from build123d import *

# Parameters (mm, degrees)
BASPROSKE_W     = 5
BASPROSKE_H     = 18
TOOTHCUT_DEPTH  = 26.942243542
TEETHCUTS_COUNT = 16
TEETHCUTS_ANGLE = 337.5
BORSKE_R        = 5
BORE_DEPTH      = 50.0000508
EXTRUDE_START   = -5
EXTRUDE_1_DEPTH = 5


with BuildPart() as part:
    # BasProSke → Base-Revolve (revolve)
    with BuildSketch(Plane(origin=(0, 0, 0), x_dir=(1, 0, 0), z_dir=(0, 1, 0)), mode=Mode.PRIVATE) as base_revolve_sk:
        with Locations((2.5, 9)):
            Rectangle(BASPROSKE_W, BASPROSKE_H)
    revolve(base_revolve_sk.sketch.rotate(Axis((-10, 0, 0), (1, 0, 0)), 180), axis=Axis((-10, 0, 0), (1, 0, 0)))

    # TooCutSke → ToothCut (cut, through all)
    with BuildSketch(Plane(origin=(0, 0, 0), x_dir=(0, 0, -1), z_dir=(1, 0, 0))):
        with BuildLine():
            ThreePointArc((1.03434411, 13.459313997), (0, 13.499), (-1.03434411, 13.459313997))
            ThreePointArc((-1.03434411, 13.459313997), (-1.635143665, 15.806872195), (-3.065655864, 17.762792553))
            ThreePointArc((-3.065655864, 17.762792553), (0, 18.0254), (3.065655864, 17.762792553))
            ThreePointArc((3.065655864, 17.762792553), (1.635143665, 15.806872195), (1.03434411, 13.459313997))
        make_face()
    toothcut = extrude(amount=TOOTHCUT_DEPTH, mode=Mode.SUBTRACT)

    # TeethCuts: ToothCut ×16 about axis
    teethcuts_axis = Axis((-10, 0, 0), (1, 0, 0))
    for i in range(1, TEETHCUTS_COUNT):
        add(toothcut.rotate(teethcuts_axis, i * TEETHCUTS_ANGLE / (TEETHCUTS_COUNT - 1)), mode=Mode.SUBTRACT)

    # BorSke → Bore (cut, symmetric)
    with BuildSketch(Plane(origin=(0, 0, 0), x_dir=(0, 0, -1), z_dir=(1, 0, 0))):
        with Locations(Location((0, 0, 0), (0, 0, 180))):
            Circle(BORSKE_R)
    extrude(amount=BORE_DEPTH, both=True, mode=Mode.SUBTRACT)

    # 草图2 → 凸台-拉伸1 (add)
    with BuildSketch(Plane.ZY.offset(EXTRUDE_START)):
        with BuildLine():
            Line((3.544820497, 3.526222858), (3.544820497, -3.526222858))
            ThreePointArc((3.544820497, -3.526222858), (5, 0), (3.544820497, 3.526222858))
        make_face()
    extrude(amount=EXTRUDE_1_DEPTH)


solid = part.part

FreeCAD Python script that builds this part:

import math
import FreeCAD as App
import Part
import Sketcher

V = App.Vector
Q = App.Units.Quantity

doc = App.newDocument("Part")
body = doc.addObject("PartDesign::Body", "Body")

sketch1 = body.newObject("Sketcher::SketchObject", "Sketch")
sketch1.AttachmentSupport = (doc.getObject("XZ_Plane"), [""])
sketch1.MapMode = "FlatFace"
sketch1.addGeometry([
    Part.LineSegment(V(0, -18, 0), V(0, 0, 0)),
    Part.LineSegment(V(0, 0, 0), V(5, 0, 0)),
    Part.LineSegment(V(5, 0, 0), V(5, -18, 0)),
    Part.LineSegment(V(5, -18, 0), V(0, -18, 0)),
], False)
sketch1.addConstraint([
    Sketcher.Constraint("Coincident", 0, 2, 1, 1),
    Sketcher.Constraint("Coincident", 1, 2, 2, 1),
    Sketcher.Constraint("Coincident", 2, 2, 3, 1),
    Sketcher.Constraint("Coincident", 3, 2, 0, 1),
    Sketcher.Constraint("Vertical", 0),
    Sketcher.Constraint("Horizontal", 1),
    Sketcher.Constraint("Vertical", 2),
    Sketcher.Constraint("Horizontal", 3),
    Sketcher.Constraint("Coincident", 0, 2, -1, 1),
    Sketcher.Constraint("DistanceX", 1, 1, 1, 2, Q("5 mm")),
    Sketcher.Constraint("DistanceY", 0, 1, 0, 2, Q("18 mm")),
])
revolution = body.newObject("PartDesign::Revolution", "Revolution")
revolution.Profile = sketch1
revolution.ReferenceAxis = (sketch1, ["H_Axis"])
revolution.Angle = 360

sketch2 = body.newObject("Sketcher::SketchObject", "Sketch001")
sketch2.AttachmentSupport = (doc.getObject("YZ_Plane"), [""])
sketch2.MapMode = "FlatFace"
sketch2.addGeometry([
    Part.ArcOfCircle(Part.Circle(V(0, 0, 0), V(0, 0, 1), 13.499), math.radians(-4.394525), math.radians(4.394525)),
    Part.ArcOfCircle(Part.Circle(V(13.075007, -7.422795, 0), V(0, 0, 1), 6.4), math.radians(42.906426), math.radians(86.557431)),
    Part.ArcOfCircle(Part.Circle(V(0, 0, 0), V(0, 0, 1), 18.0254), math.radians(-9.792134), math.radians(9.792134)),
    Part.ArcOfCircle(Part.Circle(V(13.075007, 7.422795, 0), V(0, 0, 1), 6.4), math.radians(-86.557431), math.radians(-42.906426)),
], False)
sketch2.addConstraint([
    Sketcher.Constraint("Coincident", 0, 1, 1, 2),
    Sketcher.Constraint("Coincident", 1, 1, 2, 1),
    Sketcher.Constraint("Coincident", 2, 2, 3, 2),
    Sketcher.Constraint("Coincident", 3, 1, 0, 2),
    Sketcher.Constraint("Coincident", 0, 3, -1, 1),
    Sketcher.Constraint("Coincident", 2, 3, -1, 1),
    Sketcher.Constraint("Equal", 1, 3),
    Sketcher.Constraint("Symmetric", 1, 3, 3, 3, -1),
    Sketcher.Constraint("Radius", 1, Q("6.4 mm")),
    Sketcher.Constraint("Radius", 0, Q("13.499 mm")),
    Sketcher.Constraint("Radius", 2, Q("18.0254 mm")),
    Sketcher.Constraint("DistanceY", 0, 1, 2, 2, Q("4.1 mm")),
    Sketcher.Constraint("DistanceY", 1, 3, 3, 3, Q("14.84559 mm")),
])
pocket1 = body.newObject("PartDesign::Pocket", "Pocket")
pocket1.Profile = sketch2
pocket1.Type = "ThroughAll"
pocket1.Reversed = True
doc.recompute()

polarpattern = body.newObject("PartDesign::PolarPattern", "PolarPattern")
polarpattern.Originals = [pocket1]
polarpattern.Axis = (doc.getObject("X_Axis"), [""])
polarpattern.Angle = 360
polarpattern.Occurrences = 16
body.Tip = polarpattern

sketch3 = body.newObject("Sketcher::SketchObject", "Sketch002")
sketch3.AttachmentSupport = (doc.getObject("YZ_Plane"), [""])
sketch3.MapMode = "FlatFace"
sketch3.addGeometry(Part.Circle(V(0, 0, 0), V(0, 0, 1), 5), False)
sketch3.addConstraint([
    Sketcher.Constraint("Coincident", 0, 3, -1, 1),
    Sketcher.Constraint("Diameter", 0, Q("10 mm")),
])
pocket2 = body.newObject("PartDesign::Pocket", "Pocket001")
pocket2.Profile = sketch3
pocket2.Length = 100.000102
pocket2.Midplane = True

sketch4 = body.newObject("Sketcher::SketchObject", "Sketch003")
sketch4.AttachmentSupport = (doc.getObject("YZ_Plane"), [""])
sketch4.MapMode = "FlatFace"
sketch4.AttachmentOffset = App.Placement(V(0, 0, 5), App.Rotation())
sketch4.addGeometry([
    Part.LineSegment(V(3.526223, 3.54482, 0), V(-3.526223, 3.54482, 0)),
    Part.ArcOfCircle(Part.Circle(V(0, 0, 0), V(0, 0, 1), 5), math.radians(45.150694), math.radians(134.849306)),
], False)
sketch4.addConstraint([
    Sketcher.Constraint("Coincident", 0, 1, 1, 1),
    Sketcher.Constraint("Coincident", 1, 2, 0, 2),
    Sketcher.Constraint("Horizontal", 0),
    Sketcher.Constraint("Coincident", 1, 3, -1, 1),
    Sketcher.Constraint("Radius", 1, Q("5 mm")),
    Sketcher.Constraint("DistanceX", 0, 2, 0, 1, Q("7.052446 mm")),
])
pad1 = body.newObject("PartDesign::Pad", "Pad")
pad1.Profile = sketch4
pad1.Length = 5
pad1.Reversed = True

doc.recompute()
